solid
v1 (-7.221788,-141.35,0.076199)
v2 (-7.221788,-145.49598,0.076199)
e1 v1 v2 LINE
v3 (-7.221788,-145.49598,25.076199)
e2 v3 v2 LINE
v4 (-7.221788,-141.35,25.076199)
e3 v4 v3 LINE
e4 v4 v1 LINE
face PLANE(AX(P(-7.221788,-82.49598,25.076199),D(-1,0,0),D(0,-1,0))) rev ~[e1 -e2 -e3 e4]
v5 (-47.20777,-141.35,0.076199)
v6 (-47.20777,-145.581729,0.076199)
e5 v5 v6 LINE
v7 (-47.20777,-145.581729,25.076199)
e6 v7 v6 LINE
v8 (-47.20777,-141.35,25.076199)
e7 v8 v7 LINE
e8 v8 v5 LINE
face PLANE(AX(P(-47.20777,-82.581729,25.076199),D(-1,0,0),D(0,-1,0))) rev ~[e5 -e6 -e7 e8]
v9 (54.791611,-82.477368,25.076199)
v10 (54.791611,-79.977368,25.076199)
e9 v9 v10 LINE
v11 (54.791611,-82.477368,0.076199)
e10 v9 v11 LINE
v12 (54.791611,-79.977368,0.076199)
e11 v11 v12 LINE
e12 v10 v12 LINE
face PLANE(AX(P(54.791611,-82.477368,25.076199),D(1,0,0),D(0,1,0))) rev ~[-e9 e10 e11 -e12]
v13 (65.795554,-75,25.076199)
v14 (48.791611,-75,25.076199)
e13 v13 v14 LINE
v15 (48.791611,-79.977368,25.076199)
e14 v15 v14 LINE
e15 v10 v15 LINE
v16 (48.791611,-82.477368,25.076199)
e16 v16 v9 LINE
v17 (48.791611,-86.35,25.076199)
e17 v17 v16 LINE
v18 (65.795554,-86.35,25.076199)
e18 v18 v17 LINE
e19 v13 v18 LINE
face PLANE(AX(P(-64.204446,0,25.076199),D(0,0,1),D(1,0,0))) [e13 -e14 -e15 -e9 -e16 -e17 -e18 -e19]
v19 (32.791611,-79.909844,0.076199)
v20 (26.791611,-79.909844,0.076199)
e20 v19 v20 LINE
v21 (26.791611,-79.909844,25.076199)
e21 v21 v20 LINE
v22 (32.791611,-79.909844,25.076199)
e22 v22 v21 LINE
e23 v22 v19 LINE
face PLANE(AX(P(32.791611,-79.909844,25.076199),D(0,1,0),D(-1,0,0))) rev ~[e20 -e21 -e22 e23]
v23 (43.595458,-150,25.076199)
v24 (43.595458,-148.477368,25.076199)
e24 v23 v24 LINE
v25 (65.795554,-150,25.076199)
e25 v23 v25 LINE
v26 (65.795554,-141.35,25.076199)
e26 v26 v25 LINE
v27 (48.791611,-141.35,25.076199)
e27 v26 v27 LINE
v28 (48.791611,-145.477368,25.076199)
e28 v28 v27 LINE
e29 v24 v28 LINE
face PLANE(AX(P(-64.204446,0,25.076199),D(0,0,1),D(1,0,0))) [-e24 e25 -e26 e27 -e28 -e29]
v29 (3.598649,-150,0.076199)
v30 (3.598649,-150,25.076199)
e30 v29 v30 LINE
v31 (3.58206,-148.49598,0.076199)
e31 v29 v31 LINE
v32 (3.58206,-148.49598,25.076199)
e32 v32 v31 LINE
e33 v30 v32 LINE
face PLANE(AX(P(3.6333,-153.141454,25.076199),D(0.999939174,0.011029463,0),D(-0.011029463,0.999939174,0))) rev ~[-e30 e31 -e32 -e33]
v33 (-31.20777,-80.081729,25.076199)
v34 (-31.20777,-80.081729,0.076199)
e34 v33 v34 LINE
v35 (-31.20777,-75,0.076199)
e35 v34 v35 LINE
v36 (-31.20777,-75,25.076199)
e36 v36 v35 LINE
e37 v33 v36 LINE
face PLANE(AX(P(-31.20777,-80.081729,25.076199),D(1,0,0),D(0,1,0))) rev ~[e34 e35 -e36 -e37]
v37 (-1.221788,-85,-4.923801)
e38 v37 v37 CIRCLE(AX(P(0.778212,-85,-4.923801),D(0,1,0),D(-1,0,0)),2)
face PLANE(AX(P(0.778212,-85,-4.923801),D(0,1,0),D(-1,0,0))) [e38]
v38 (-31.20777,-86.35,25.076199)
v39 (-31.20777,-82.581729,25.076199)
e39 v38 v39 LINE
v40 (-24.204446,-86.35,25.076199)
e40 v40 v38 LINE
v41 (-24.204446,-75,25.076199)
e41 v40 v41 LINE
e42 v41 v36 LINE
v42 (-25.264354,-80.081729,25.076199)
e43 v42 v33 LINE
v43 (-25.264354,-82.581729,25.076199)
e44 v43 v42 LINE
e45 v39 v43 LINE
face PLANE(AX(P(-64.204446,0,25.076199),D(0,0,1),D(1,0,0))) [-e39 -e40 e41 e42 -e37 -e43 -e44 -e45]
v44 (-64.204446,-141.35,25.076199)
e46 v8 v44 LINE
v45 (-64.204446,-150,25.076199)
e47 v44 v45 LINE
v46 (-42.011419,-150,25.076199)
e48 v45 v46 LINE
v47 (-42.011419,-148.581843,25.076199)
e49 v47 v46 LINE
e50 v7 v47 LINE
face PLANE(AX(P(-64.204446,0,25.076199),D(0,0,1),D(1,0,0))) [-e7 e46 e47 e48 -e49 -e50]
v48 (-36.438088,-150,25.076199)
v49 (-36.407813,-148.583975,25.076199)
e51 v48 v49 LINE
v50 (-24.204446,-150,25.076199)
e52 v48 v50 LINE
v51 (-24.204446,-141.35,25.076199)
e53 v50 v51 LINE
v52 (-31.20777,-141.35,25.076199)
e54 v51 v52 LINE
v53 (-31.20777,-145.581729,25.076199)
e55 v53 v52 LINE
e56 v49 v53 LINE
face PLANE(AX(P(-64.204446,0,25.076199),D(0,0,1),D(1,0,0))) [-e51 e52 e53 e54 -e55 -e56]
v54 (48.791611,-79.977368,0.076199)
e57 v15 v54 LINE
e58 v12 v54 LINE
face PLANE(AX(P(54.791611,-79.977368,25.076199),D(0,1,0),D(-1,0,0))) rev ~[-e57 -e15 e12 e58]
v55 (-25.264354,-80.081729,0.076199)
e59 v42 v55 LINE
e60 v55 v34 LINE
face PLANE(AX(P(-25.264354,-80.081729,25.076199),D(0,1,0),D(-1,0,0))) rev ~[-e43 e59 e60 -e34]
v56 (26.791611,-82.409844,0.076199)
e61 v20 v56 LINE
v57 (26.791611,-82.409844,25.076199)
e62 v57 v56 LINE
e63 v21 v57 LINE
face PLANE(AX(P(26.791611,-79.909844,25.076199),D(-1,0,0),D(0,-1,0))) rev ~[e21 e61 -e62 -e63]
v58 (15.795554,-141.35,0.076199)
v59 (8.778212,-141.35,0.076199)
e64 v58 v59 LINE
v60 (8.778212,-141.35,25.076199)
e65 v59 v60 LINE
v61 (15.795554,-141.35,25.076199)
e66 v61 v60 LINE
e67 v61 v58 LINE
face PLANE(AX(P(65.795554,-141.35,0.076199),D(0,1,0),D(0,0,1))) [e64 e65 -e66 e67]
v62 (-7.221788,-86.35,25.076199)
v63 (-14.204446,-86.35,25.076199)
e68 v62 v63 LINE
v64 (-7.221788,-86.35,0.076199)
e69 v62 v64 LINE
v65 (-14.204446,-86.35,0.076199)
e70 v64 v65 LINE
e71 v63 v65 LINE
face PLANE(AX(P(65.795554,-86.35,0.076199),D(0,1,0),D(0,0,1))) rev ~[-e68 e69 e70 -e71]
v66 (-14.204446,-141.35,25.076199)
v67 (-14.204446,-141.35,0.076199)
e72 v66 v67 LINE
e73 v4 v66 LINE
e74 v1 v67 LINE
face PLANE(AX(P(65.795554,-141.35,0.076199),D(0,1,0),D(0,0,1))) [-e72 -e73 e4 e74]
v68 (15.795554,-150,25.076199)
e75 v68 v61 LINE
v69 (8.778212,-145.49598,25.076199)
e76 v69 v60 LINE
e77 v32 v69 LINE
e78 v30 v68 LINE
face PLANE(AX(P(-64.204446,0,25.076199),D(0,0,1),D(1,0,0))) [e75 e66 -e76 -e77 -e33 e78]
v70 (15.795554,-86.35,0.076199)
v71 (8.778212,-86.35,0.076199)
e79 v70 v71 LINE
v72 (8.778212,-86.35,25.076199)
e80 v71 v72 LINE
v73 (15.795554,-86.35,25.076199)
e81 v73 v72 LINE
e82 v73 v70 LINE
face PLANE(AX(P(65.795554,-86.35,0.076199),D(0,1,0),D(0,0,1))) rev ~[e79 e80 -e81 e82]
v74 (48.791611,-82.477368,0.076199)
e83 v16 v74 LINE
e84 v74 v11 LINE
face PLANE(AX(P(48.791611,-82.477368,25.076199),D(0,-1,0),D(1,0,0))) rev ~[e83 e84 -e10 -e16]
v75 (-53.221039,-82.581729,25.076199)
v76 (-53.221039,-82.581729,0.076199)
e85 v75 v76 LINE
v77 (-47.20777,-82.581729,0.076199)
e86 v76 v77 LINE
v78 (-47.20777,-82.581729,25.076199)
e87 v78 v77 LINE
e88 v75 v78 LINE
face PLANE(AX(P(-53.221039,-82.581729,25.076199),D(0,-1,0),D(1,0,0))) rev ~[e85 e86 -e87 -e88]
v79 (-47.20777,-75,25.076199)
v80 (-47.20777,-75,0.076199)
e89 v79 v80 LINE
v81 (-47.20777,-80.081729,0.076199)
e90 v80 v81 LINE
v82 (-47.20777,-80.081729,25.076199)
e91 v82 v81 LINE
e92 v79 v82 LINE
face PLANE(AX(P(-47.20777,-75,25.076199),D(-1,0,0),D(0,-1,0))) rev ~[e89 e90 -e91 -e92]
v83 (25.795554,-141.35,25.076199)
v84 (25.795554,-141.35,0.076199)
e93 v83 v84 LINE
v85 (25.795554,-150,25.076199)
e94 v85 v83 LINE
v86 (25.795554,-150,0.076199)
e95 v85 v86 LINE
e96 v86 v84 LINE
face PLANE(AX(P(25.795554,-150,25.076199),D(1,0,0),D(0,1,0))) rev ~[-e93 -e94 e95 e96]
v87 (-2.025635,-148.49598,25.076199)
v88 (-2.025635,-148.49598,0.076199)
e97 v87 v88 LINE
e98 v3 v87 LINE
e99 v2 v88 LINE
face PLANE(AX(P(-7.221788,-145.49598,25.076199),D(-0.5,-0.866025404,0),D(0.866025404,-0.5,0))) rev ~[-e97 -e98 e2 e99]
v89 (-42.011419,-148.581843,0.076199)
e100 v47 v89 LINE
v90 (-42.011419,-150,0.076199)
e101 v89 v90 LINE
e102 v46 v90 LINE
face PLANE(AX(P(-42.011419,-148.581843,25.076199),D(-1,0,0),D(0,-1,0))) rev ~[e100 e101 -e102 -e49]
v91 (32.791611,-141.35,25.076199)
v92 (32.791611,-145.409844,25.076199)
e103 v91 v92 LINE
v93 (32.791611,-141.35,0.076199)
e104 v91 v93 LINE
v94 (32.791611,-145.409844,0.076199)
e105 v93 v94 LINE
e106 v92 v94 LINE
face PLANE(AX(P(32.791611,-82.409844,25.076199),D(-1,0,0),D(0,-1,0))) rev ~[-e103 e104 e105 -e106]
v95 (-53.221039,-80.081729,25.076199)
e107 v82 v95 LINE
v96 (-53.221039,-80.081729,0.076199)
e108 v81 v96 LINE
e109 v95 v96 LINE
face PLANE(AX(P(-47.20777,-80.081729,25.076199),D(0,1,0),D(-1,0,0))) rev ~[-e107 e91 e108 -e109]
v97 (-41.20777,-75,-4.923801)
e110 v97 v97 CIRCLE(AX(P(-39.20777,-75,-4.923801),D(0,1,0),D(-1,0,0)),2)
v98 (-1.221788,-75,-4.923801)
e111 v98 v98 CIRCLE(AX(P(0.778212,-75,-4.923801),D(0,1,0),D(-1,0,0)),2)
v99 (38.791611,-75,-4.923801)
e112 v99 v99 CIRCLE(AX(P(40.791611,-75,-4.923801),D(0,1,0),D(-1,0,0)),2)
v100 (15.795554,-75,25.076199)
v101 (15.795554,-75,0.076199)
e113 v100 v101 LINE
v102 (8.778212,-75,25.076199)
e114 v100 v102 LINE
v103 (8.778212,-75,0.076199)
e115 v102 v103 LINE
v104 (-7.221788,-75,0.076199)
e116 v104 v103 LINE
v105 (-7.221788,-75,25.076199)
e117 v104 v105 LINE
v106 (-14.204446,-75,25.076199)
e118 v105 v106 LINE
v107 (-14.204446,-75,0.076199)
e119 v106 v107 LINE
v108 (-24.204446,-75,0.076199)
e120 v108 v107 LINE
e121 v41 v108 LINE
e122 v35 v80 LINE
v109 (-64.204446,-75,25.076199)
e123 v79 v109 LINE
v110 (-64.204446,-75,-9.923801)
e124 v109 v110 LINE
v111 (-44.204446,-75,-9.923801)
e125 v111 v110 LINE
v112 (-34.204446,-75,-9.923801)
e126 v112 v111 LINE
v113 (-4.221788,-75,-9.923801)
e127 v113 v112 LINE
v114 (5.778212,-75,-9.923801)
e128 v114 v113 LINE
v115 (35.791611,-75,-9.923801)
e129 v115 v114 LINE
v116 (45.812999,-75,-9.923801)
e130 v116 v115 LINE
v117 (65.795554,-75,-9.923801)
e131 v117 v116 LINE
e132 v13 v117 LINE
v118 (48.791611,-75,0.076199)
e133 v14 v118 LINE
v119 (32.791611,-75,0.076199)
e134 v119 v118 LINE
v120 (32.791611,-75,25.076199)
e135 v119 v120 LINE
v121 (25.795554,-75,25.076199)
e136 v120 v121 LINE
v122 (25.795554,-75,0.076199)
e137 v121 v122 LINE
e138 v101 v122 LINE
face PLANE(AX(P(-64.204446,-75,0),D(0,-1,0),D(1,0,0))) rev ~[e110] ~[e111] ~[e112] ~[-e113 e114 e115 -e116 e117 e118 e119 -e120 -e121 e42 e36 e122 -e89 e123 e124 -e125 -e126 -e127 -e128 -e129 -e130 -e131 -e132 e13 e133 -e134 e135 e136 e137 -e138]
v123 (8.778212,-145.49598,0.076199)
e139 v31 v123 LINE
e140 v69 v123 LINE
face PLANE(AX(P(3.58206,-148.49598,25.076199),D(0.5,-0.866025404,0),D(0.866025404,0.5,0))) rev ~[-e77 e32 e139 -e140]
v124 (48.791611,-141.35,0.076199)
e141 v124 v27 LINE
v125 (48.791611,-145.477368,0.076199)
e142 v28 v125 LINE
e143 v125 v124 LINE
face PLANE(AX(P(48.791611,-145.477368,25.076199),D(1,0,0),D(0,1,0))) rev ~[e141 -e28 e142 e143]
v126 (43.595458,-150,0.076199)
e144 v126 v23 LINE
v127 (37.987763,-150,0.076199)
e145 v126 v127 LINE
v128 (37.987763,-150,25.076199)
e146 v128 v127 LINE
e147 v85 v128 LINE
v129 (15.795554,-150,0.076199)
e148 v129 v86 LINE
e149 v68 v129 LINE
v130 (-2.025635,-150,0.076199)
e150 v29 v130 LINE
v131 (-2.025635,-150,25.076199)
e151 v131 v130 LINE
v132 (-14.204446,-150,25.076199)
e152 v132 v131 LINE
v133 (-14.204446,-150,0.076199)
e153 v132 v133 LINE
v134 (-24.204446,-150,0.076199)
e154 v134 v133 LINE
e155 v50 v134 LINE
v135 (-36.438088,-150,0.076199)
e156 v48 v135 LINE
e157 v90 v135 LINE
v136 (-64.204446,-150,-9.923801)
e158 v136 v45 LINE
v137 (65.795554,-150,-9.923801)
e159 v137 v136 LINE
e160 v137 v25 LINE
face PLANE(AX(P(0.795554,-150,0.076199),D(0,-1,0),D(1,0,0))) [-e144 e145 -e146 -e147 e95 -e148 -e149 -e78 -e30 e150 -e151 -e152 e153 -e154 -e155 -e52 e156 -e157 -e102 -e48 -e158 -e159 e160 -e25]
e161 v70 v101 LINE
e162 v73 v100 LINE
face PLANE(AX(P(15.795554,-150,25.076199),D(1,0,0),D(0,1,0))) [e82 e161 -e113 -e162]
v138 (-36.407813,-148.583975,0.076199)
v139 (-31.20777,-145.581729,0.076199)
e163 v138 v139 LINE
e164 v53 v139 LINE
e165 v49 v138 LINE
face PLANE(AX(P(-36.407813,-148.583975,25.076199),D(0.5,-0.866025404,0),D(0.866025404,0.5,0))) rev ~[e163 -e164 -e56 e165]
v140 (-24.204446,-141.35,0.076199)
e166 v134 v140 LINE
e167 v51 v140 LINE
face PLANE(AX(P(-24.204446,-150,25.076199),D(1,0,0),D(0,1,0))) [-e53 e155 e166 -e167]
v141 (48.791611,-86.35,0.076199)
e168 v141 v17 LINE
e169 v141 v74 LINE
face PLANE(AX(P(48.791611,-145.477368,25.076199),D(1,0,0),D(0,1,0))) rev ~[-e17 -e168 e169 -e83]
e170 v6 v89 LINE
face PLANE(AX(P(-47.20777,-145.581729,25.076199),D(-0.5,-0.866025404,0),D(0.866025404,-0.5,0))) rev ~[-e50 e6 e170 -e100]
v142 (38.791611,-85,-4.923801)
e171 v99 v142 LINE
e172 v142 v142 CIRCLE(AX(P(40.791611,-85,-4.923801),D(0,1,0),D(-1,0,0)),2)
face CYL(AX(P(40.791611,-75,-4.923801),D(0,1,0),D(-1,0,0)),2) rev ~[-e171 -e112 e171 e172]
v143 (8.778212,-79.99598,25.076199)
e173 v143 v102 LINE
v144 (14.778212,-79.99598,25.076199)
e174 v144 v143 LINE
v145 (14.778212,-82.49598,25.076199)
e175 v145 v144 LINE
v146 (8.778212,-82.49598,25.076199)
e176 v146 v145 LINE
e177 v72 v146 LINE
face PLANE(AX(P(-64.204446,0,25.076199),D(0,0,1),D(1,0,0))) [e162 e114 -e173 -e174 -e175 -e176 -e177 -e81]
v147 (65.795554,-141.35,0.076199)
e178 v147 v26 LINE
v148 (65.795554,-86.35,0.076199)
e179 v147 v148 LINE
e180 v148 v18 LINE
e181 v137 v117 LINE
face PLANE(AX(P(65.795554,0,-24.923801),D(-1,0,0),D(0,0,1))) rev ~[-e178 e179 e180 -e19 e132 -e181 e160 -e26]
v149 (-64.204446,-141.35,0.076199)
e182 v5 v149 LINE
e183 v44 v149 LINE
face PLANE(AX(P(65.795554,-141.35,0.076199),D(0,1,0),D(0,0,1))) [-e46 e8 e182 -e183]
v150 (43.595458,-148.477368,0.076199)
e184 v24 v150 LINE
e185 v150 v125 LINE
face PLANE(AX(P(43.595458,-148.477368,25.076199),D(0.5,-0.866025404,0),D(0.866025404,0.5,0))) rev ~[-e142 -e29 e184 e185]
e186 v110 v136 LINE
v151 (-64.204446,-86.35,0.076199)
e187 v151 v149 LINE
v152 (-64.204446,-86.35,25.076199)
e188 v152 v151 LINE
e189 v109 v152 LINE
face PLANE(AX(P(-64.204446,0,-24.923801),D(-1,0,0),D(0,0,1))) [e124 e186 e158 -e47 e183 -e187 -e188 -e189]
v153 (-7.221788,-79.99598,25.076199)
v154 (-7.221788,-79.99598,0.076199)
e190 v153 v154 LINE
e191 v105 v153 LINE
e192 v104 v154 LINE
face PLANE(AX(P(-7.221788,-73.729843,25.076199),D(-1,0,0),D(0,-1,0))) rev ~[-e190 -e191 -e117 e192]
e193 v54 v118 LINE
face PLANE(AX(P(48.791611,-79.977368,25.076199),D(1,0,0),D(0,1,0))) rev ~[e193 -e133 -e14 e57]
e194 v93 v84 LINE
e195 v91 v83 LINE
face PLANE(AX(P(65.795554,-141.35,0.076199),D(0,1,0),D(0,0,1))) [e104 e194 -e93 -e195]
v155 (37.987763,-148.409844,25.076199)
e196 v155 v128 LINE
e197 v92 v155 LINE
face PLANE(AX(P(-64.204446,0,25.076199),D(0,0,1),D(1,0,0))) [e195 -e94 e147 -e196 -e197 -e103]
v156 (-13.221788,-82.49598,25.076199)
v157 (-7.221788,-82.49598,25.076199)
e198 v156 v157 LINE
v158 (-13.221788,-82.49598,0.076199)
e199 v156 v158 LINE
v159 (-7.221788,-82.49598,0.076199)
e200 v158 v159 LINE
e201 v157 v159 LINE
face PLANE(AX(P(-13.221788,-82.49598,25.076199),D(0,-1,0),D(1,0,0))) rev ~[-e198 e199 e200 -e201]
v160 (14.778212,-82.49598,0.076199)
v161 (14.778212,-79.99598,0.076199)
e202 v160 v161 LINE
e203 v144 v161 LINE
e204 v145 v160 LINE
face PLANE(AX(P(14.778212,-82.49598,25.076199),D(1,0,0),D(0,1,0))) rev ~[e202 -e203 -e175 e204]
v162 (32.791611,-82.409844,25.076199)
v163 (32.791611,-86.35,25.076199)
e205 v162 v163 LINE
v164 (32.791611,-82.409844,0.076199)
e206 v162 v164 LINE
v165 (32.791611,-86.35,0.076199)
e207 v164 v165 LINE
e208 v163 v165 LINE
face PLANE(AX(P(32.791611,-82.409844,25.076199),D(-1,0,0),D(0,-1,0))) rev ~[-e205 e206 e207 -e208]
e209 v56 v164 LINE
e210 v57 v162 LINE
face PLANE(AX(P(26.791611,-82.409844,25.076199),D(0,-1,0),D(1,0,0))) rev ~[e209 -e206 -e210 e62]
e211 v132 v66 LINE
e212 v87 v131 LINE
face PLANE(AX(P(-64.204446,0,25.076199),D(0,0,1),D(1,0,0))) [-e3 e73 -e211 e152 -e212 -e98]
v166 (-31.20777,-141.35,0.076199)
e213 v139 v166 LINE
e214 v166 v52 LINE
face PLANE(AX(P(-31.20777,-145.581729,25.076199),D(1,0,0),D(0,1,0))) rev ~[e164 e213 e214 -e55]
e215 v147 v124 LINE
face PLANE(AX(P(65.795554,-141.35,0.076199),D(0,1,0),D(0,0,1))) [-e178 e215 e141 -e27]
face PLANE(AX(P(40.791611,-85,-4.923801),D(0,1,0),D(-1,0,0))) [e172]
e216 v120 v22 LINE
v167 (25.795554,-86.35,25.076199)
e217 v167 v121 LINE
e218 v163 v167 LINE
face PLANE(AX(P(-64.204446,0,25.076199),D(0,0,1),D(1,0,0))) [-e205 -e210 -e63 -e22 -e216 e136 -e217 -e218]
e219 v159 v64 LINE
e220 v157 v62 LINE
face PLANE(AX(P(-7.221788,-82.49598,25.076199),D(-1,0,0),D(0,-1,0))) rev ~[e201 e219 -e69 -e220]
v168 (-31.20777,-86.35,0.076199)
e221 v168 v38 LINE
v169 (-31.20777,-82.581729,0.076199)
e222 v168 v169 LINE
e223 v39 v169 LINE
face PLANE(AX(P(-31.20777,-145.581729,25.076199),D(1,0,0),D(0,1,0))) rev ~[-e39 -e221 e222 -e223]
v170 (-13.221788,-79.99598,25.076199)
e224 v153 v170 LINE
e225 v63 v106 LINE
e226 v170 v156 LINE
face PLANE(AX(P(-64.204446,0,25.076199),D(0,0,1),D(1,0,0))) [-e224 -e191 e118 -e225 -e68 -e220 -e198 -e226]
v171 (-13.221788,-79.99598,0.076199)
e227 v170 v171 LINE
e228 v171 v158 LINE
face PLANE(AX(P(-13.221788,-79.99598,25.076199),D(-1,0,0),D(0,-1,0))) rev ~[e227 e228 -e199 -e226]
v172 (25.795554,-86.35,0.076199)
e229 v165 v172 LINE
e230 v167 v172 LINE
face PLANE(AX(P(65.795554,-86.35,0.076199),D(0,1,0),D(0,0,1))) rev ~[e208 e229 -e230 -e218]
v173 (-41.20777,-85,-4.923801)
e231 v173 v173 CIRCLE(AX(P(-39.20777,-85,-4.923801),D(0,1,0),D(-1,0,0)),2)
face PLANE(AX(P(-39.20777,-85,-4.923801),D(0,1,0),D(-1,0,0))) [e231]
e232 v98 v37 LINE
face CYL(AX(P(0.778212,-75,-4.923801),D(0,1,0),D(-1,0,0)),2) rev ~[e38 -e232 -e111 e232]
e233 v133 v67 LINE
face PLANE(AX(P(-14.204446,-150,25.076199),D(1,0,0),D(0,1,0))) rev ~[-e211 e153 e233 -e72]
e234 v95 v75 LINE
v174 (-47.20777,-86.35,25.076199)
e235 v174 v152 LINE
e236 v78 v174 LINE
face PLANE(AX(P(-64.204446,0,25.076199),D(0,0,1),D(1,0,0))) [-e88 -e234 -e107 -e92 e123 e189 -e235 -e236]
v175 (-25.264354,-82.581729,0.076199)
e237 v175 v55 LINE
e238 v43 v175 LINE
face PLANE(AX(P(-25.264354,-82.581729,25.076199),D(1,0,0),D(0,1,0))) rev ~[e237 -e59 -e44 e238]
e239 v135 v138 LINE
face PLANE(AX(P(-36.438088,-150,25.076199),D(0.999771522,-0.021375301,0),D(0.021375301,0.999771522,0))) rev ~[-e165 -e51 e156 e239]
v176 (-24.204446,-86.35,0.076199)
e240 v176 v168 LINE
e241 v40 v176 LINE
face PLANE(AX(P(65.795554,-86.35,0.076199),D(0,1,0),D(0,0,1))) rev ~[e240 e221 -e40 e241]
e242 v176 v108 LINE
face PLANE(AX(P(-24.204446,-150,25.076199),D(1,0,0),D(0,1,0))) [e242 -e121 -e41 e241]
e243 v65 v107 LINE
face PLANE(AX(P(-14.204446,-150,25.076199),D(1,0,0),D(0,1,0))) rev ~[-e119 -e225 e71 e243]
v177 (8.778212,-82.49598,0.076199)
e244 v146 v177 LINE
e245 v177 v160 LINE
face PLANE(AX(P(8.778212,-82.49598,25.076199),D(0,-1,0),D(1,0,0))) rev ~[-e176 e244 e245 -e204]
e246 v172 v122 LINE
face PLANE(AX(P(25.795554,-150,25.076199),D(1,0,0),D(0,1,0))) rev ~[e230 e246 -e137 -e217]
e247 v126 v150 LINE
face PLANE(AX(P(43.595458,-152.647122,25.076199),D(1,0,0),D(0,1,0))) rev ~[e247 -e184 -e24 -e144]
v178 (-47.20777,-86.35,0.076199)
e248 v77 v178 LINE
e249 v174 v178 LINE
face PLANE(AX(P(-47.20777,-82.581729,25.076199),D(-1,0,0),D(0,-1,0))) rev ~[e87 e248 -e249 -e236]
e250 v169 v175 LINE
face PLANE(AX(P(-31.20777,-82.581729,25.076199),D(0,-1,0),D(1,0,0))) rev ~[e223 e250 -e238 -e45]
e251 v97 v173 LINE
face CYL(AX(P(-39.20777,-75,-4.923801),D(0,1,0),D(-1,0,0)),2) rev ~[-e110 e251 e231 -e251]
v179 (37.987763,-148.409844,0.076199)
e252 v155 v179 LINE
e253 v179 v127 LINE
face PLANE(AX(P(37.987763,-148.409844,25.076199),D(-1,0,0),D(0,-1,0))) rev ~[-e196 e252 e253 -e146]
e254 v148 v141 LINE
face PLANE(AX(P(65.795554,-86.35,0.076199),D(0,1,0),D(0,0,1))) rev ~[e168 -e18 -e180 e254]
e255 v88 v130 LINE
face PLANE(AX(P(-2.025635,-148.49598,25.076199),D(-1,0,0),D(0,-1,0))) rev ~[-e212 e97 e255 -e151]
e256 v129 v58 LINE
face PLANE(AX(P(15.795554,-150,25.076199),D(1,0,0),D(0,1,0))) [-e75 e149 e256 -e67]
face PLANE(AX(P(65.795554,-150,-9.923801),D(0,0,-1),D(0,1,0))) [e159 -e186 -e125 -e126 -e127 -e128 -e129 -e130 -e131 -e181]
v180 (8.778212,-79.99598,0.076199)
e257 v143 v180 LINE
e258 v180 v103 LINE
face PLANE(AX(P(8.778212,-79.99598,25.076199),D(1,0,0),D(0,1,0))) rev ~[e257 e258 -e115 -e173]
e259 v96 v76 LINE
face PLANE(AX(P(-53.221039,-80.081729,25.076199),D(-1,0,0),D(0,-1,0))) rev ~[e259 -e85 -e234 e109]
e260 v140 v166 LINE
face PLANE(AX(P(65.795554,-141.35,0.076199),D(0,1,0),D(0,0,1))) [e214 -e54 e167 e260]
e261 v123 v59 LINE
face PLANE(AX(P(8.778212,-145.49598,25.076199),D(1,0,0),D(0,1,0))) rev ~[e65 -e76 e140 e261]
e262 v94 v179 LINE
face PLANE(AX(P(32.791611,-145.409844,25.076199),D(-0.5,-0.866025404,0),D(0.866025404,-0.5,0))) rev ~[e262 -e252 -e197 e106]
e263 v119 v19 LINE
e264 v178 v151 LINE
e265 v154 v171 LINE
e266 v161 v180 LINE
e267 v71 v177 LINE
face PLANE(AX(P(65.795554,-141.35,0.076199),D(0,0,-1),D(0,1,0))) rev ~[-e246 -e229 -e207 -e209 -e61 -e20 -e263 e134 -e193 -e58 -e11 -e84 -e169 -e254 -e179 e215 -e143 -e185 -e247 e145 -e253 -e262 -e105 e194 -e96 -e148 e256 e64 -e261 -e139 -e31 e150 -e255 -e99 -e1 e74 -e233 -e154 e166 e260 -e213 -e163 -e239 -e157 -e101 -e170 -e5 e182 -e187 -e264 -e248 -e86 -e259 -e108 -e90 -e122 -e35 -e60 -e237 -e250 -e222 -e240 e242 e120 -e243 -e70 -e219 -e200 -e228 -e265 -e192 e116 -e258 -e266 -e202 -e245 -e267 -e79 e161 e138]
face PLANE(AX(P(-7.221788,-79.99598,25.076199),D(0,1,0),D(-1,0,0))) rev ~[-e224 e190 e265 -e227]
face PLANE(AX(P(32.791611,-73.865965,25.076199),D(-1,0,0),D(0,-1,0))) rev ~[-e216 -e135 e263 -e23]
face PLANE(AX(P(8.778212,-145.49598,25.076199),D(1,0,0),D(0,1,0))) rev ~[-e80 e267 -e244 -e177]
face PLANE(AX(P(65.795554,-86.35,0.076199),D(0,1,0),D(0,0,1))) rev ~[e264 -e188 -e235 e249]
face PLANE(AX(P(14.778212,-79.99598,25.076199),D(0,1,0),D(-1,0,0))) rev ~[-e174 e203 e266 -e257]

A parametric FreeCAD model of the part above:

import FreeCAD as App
import Part
import Sketcher
Q = App.Units.Quantity

doc = App.newDocument("Part")
body = doc.addObject("PartDesign::Body", "Body")

# Sketch on XZ plane
sketch1 = body.newObject("Sketcher::SketchObject", "Sketch")
sketch1.AttachmentSupport = (doc.getObject("XZ_Plane"), [""])
sketch1.MapMode = "FlatFace"
sketch1.addGeometry([
    Part.LineSegment(App.Vector(-64, 25, 0), App.Vector(-64, -25, 0)),
    Part.LineSegment(App.Vector(-64, -25, 0), App.Vector(66, -25, 0)),
    Part.LineSegment(App.Vector(66, -25, 0), App.Vector(66, 25, 0)),
    Part.LineSegment(App.Vector(66, 25, 0), App.Vector(-64, 25, 0)),
], False)
sketch1.addConstraint([
    Sketcher.Constraint("Coincident", 0, 2, 1, 1),
    Sketcher.Constraint("Coincident", 1, 2, 2, 1),
    Sketcher.Constraint("Coincident", 2, 2, 3, 1),
    Sketcher.Constraint("Coincident", 3, 2, 0, 1),
    Sketcher.Constraint("Vertical", 0),
    Sketcher.Constraint("Horizontal", 1),
    Sketcher.Constraint("Vertical", 2),
    Sketcher.Constraint("Horizontal", 3),
    Sketcher.Constraint("DistanceX", 1, 1, 1, 2, Q("130 mm")),
    Sketcher.Constraint("DistanceY", 0, 2, 0, 1, Q("50 mm")),
    Sketcher.Constraint("DistanceY", 0, 2, -1, 1, Q("24.923801 mm")),
    Sketcher.Constraint("DistanceX", 0, 2, -1, 1, Q("64.204446 mm")),
])
pad1 = body.newObject("PartDesign::Pad", "Pad")
pad1.Profile = sketch1
pad1.Length = 150

# Sketch on YZ plane
sketch2 = body.newObject("Sketcher::SketchObject", "Sketch001")
sketch2.AttachmentSupport = (doc.getObject("YZ_Plane"), [""])
sketch2.MapMode = "FlatFace"
sketch2.AttachmentOffset = App.Placement(App.Vector(0, 0, 65.795554), App.Rotation())
sketch2.addGeometry([
    Part.LineSegment(App.Vector(-75, 25, 0), App.Vector(-75, 0, 0)),
    Part.LineSegment(App.Vector(-75, 0, 0), App.Vector(0, 0, 0)),
    Part.LineSegment(App.Vector(0, 0, 0), App.Vector(0, 25, 0)),
    Part.LineSegment(App.Vector(0, 25, 0), App.Vector(-75, 25, 0)),
], False)
sketch2.addConstraint([
    Sketcher.Constraint("Coincident", 0, 2, 1, 1),
    Sketcher.Constraint("Coincident", 1, 2, 2, 1),
    Sketcher.Constraint("Coincident", 2, 2, 3, 1),
    Sketcher.Constraint("Coincident", 3, 2, 0, 1),
    Sketcher.Constraint("Vertical", 0),
    Sketcher.Constraint("Horizontal", 1),
    Sketcher.Constraint("Vertical", 2),
    Sketcher.Constraint("Horizontal", 3),
    Sketcher.Constraint("Coincident", 1, 2, -1, 1),
    Sketcher.Constraint("DistanceX", 1, 1, 1, 2, Q("75 mm")),
    Sketcher.Constraint("DistanceY", 0, 2, 0, 1, Q("25.076199 mm")),
])
pocket1 = body.newObject("PartDesign::Pocket", "Pocket")
pocket1.Profile = sketch2
pocket1.Type = "ThroughAll"

# Sketch on XY plane
sketch3 = body.newObject("Sketcher::SketchObject", "Sketch002")
sketch3.AttachmentSupport = (doc.getObject("XY_Plane"), [""])
sketch3.MapMode = "FlatFace"
sketch3.AttachmentOffset = App.Placement(App.Vector(0, 0, 25.076199), App.Rotation())
sketch3.addGeometry([
    Part.LineSegment(App.Vector(-31.2, -75, 0), App.Vector(-47.2, -75, 0)),  # 0
    Part.LineSegment(App.Vector(-47.2, -75, 0), App.Vector(-47.2, -80.1, 0)),  # 1
    Part.LineSegment(App.Vector(-47.2, -80.1, 0), App.Vector(-53.2, -80.1, 0)),  # 2
    Part.LineSegment(App.Vector(-53.2, -80.1, 0), App.Vector(-53.2, -82.6, 0)),  # 3
    Part.LineSegment(App.Vector(-53.2, -82.6, 0), App.Vector(-47.2, -82.6, 0)),  # 4
    Part.LineSegment(App.Vector(-47.2, -82.6, 0), App.Vector(-47.2, -145.6, 0)),  # 5
    Part.LineSegment(App.Vector(-47.2, -145.6, 0), App.Vector(-42, -148.6, 0)),  # 6
    Part.LineSegment(App.Vector(-42, -148.6, 0), App.Vector(-42, -150, 0)),  # 7
    Part.LineSegment(App.Vector(-42, -150, 0), App.Vector(-36.4, -150, 0)),  # 8
    Part.LineSegment(App.Vector(-36.4, -150, 0), App.Vector(-36.4, -148.6, 0)),  # 9
    Part.LineSegment(App.Vector(-36.4, -148.6, 0), App.Vector(-31.2, -145.6, 0)),  # 10
    Part.LineSegment(App.Vector(-31.2, -145.6, 0), App.Vector(-31.2, -82.6, 0)),  # 11
    Part.LineSegment(App.Vector(-31.2, -82.6, 0), App.Vector(-25.3, -82.6, 0)),  # 12
    Part.LineSegment(App.Vector(-25.3, -82.6, 0), App.Vector(-25.3, -80.1, 0)),  # 13
    Part.LineSegment(App.Vector(-25.3, -80.1, 0), App.Vector(-31.2, -80.1, 0)),  # 14
    Part.LineSegment(App.Vector(-31.2, -80.1, 0), App.Vector(-31.2, -75, 0)),  # 15
], False)
sketch3.addConstraint([
    Sketcher.Constraint("Coincident", 0, 2, 1, 1),
    Sketcher.Constraint("Coincident", 1, 2, 2, 1),
    Sketcher.Constraint("Coincident", 2, 2, 3, 1),
    Sketcher.Constraint("Coincident", 3, 2, 4, 1),
    Sketcher.Constraint("Coincident", 4, 2, 5, 1),
    Sketcher.Constraint("Coincident", 5, 2, 6, 1),
    Sketcher.Constraint("Coincident", 6, 2, 7, 1),
    Sketcher.Constraint("Coincident", 7, 2, 8, 1),
    Sketcher.Constraint("Coincident", 8, 2, 9, 1),
    Sketcher.Constraint("Coincident", 9, 2, 10, 1),
    Sketcher.Constraint("Coincident", 10, 2, 11, 1),
    Sketcher.Constraint("Coincident", 11, 2, 12, 1),
    Sketcher.Constraint("Coincident", 12, 2, 13, 1),
    Sketcher.Constraint("Coincident", 13, 2, 14, 1),
    Sketcher.Constraint("Coincident", 14, 2, 15, 1),
    Sketcher.Constraint("Coincident", 15, 2, 0, 1),
    Sketcher.Constraint("Horizontal", 0),
    Sketcher.Constraint("Vertical", 1),
    Sketcher.Constraint("Horizontal", 2),
    Sketcher.Constraint("Vertical", 3),
    Sketcher.Constraint("Horizontal", 4),
    Sketcher.Constraint("Vertical", 5),
    Sketcher.Constraint("Vertical", 7),
    Sketcher.Constraint("Horizontal", 8),
    Sketcher.Constraint("Vertical", 11),
    Sketcher.Constraint("Horizontal", 12),
    Sketcher.Constraint("Vertical", 13),
    Sketcher.Constraint("Horizontal", 14),
    Sketcher.Constraint("Vertical", 15),
    Sketcher.Constraint("Horizontal", 5, 2, 10, 2),
    Sketcher.Constraint("Horizontal", 4, 2, 11, 2),
    Sketcher.Constraint("Horizontal", 2, 2, 13, 2),
    Sketcher.Constraint("Vertical", 1, 2, 4, 2),
    Sketcher.Constraint("Vertical", 11, 2, 14, 2),
    Sketcher.Constraint("DistanceX", 0, 2, 0, 1, Q("16 mm")),
    Sketcher.Constraint("DistanceY", 5, 2, 5, 1, Q("63 mm")),
    Sketcher.Constraint("Angle", 6, Q("-30 deg")),
    Sketcher.Constraint("Angle", 10, Q("30 deg")),
    Sketcher.Constraint("DistanceY", 3, 2, 3, 1, Q("2.5 mm")),
    Sketcher.Constraint("DistanceY", 0, 2, -1, 1, Q("75 mm")),
    Sketcher.Constraint("DistanceY", 7, 2, -1, 1, Q("150 mm")),
    Sketcher.Constraint("DistanceX", 2, 2, 2, 1, Q("6.01327 mm")),
    Sketcher.Constraint("DistanceX", 8, 1, 8, 2, Q("5.573331 mm")),
    Sketcher.Constraint("DistanceY", 1, 2, 1, 1, Q("5.081729 mm")),
    Sketcher.Constraint("Distance", 6, Q("6.00023 mm")),
    Sketcher.Constraint("Distance", 9, Q("1.416349 mm")),
    Sketcher.Constraint("DistanceX", 12, 1, 12, 2, Q("5.943416 mm")),
    Sketcher.Constraint("DistanceX", 0, 2, -1, 1, Q("47.20777 mm")),
])
pocket2 = body.newObject("PartDesign::Pocket", "Pocket001")
pocket2.Profile = sketch3
pocket2.Length = 25

# Sketch on XY plane
sketch4 = body.newObject("Sketcher::SketchObject", "Sketch003")
sketch4.AttachmentSupport = (doc.getObject("XY_Plane"), [""])
sketch4.MapMode = "FlatFace"
sketch4.AttachmentOffset = App.Placement(App.Vector(0, 0, 25.076199), App.Rotation())
sketch4.addGeometry([
    Part.LineSegment(App.Vector(48.8, -73.9, 0), App.Vector(32.8, -73.9, 0)),  # 0
    Part.LineSegment(App.Vector(32.8, -73.9, 0), App.Vector(32.8, -79.9, 0)),  # 1
    Part.LineSegment(App.Vector(32.8, -79.9, 0), App.Vector(26.8, -79.9, 0)),  # 2
    Part.LineSegment(App.Vector(26.8, -79.9, 0), App.Vector(26.8, -82.4, 0)),  # 3
    Part.LineSegment(App.Vector(26.8, -82.4, 0), App.Vector(32.8, -82.4, 0)),  # 4
    Part.LineSegment(App.Vector(32.8, -82.4, 0), App.Vector(32.8, -145.4, 0)),  # 5
    Part.LineSegment(App.Vector(32.8, -145.4, 0), App.Vector(38, -148.4, 0)),  # 6
    Part.LineSegment(App.Vector(38, -148.4, 0), App.Vector(38, -152.6, 0)),  # 7
    Part.LineSegment(App.Vector(38, -152.6, 0), App.Vector(43.6, -152.6, 0)),  # 8
    Part.LineSegment(App.Vector(43.6, -152.6, 0), App.Vector(43.6, -148.5, 0)),  # 9
    Part.LineSegment(App.Vector(43.6, -148.5, 0), App.Vector(48.8, -145.5, 0)),  # 10
    Part.LineSegment(App.Vector(48.8, -145.5, 0), App.Vector(48.8, -82.5, 0)),  # 11
    Part.LineSegment(App.Vector(48.8, -82.5, 0), App.Vector(54.8, -82.5, 0)),  # 12
    Part.LineSegment(App.Vector(54.8, -82.5, 0), App.Vector(54.8, -80, 0)),  # 13
    Part.LineSegment(App.Vector(54.8, -80, 0), App.Vector(48.8, -80, 0)),  # 14
    Part.LineSegment(App.Vector(48.8, -80, 0), App.Vector(48.8, -73.9, 0)),  # 15
], False)
sketch4.addConstraint([
    Sketcher.Constraint("Coincident", 0, 2, 1, 1),
    Sketcher.Constraint("Coincident", 1, 2, 2, 1),
    Sketcher.Constraint("Coincident", 2, 2, 3, 1),
    Sketcher.Constraint("Coincident", 3, 2, 4, 1),
    Sketcher.Constraint("Coincident", 4, 2, 5, 1),
    Sketcher.Constraint("Coincident", 5, 2, 6, 1),
    Sketcher.Constraint("Coincident", 6, 2, 7, 1),
    Sketcher.Constraint("Coincident", 7, 2, 8, 1),
    Sketcher.Constraint("Coincident", 8, 2, 9, 1),
    Sketcher.Constraint("Coincident", 9, 2, 10, 1),
    Sketcher.Constraint("Coincident", 10, 2, 11, 1),
    Sketcher.Constraint("Coincident", 11, 2, 12, 1),
    Sketcher.Constraint("Coincident", 12, 2, 13, 1),
    Sketcher.Constraint("Coincident", 13, 2, 14, 1),
    Sketcher.Constraint("Coincident", 14, 2, 15, 1),
    Sketcher.Constraint("Coincident", 15, 2, 0, 1),
    Sketcher.Constraint("Vertical", 1),
    Sketcher.Constraint("Horizontal", 2),
    Sketcher.Constraint("Vertical", 3),
    Sketcher.Constraint("Horizontal", 4),
    Sketcher.Constraint("Vertical", 5),
    Sketcher.Constraint("Vertical", 7),
    Sketcher.Constraint("Horizontal", 8),
    Sketcher.Constraint("Vertical", 9),
    Sketcher.Constraint("Vertical", 11),
    Sketcher.Constraint("Horizontal", 12),
    Sketcher.Constraint("Vertical", 13),
    Sketcher.Constraint("Horizontal", 14),
    Sketcher.Constraint("Vertical", 15),
    Sketcher.Constraint("Vertical", 1, 2, 4, 2),
    Sketcher.Constraint("Vertical", 11, 2, 14, 2),
    Sketcher.Constraint("Equal", 4, 12),
    Sketcher.Constraint("Equal", 5, 11),
    Sketcher.Constraint("Equal", 3, 13),
    Sketcher.Constraint("Equal", 1, 15),
    Sketcher.Constraint("Equal", 6, 10),
    Sketcher.Constraint("DistanceX", 2, 2, 2, 1, Q("6 mm")),
    Sketcher.Constraint("DistanceY", 5, 2, 5, 1, Q("63 mm")),
    Sketcher.Constraint("Angle", 6, Q("-30 deg")),
    Sketcher.Constraint("Angle", 10, Q("30 deg")),
    Sketcher.Constraint("Distance", 6, Q("6 mm")),
    Sketcher.Constraint("DistanceY", 3, 2, 3, 1, Q("2.5 mm")),
    Sketcher.Constraint("DistanceX", 5, 2, 10, 2, Q("16 mm")),
    Sketcher.Constraint("DistanceY", 1, 2, 1, 1, Q("6.043878 mm")),
    Sketcher.Constraint("DistanceY", 7, 2, 7, 1, Q("4.237278 mm")),
    Sketcher.Constraint("DistanceY", 9, 1, 9, 2, Q("4.169754 mm")),
    Sketcher.Constraint("DistanceX", -1, 1, 0, 2, Q("32.791611 mm")),
    Sketcher.Constraint("DistanceY", 7, 2, -1, 1, Q("152.647122 mm")),
])
pocket3 = body.newObject("PartDesign::Pocket", "Pocket002")
pocket3.Profile = sketch4
pocket3.Length = 25

# Sketch on XY plane
sketch5 = body.newObject("Sketcher::SketchObject", "Sketch004")
sketch5.AttachmentSupport = (doc.getObject("XY_Plane"), [""])
sketch5.MapMode = "FlatFace"
sketch5.AttachmentOffset = App.Placement(App.Vector(0, 0, 25.076199), App.Rotation())
sketch5.addGeometry([
    Part.LineSegment(App.Vector(8.8, -73.7, 0), App.Vector(-7.2, -73.7, 0)),  # 0
    Part.LineSegment(App.Vector(-7.2, -73.7, 0), App.Vector(-7.2, -80, 0)),  # 1
    Part.LineSegment(App.Vector(-7.2, -80, 0), App.Vector(-13.2, -80, 0)),  # 2
    Part.LineSegment(App.Vector(-13.2, -80, 0), App.Vector(-13.2, -82.5, 0)),  # 3
    Part.LineSegment(App.Vector(-13.2, -82.5, 0), App.Vector(-7.2, -82.5, 0)),  # 4
    Part.LineSegment(App.Vector(-7.2, -82.5, 0), App.Vector(-7.2, -145.5, 0)),  # 5
    Part.LineSegment(App.Vector(-7.2, -145.5, 0), App.Vector(-2, -148.5, 0)),  # 6
    Part.LineSegment(App.Vector(-2, -148.5, 0), App.Vector(-2, -153.1, 0)),  # 7
    Part.LineSegment(App.Vector(-2, -153.1, 0), App.Vector(3.6, -153.1, 0)),  # 8
    Part.LineSegment(App.Vector(3.6, -153.1, 0), App.Vector(3.6, -148.5, 0)),  # 9
    Part.LineSegment(App.Vector(3.6, -148.5, 0), App.Vector(8.8, -145.5, 0)),  # 10
    Part.LineSegment(App.Vector(8.8, -145.5, 0), App.Vector(8.8, -82.5, 0)),  # 11
    Part.LineSegment(App.Vector(8.8, -82.5, 0), App.Vector(14.8, -82.5, 0)),  # 12
    Part.LineSegment(App.Vector(14.8, -82.5, 0), App.Vector(14.8, -80, 0)),  # 13
    Part.LineSegment(App.Vector(14.8, -80, 0), App.Vector(8.8, -80, 0)),  # 14
    Part.LineSegment(App.Vector(8.8, -80, 0), App.Vector(8.8, -73.7, 0)),  # 15
], False)
sketch5.addConstraint([
    Sketcher.Constraint("Coincident", 0, 2, 1, 1),
    Sketcher.Constraint("Coincident", 1, 2, 2, 1),
    Sketcher.Constraint("Coincident", 2, 2, 3, 1),
    Sketcher.Constraint("Coincident", 3, 2, 4, 1),
    Sketcher.Constraint("Coincident", 4, 2, 5, 1),
    Sketcher.Constraint("Coincident", 5, 2, 6, 1),
    Sketcher.Constraint("Coincident", 6, 2, 7, 1),
    Sketcher.Constraint("Coincident", 7, 2, 8, 1),
    Sketcher.Constraint("Coincident", 8, 2, 9, 1),
    Sketcher.Constraint("Coincident", 9, 2, 10, 1),
    Sketcher.Constraint("Coincident", 10, 2, 11, 1),
    Sketcher.Constraint("Coincident", 11, 2, 12, 1),
    Sketcher.Constraint("Coincident", 12, 2, 13, 1),
    Sketcher.Constraint("Coincident", 13, 2, 14, 1),
    Sketcher.Constraint("Coincident", 14, 2, 15, 1),
    Sketcher.Constraint("Coincident", 15, 2, 0, 1),
    Sketcher.Constraint("Horizontal", 0),
    Sketcher.Constraint("Vertical", 1),
    Sketcher.Constraint("Horizontal", 2),
    Sketcher.Constraint("Vertical", 3),
    Sketcher.Constraint("Horizontal", 4),
    Sketcher.Constraint("Vertical", 5),
    Sketcher.Constraint("Vertical", 7),
    Sketcher.Constraint("Horizontal", 8),
    Sketcher.Constraint("Vertical", 11),
    Sketcher.Constraint("Horizontal", 12),
    Sketcher.Constraint("Vertical", 13),
    Sketcher.Constraint("Horizontal", 14),
    Sketcher.Constraint("Vertical", 15),
    Sketcher.Constraint("Horizontal", 6, 2, 9, 2),
    Sketcher.Constraint("Horizontal", 5, 2, 10, 2),
    Sketcher.Constraint("Horizontal", 4, 2, 11, 2),
    Sketcher.Constraint("Horizontal", 2, 2, 13, 2),
    Sketcher.Constraint("Vertical", 1, 2, 4, 2),
    Sketcher.Constraint("Vertical", 11, 2, 14, 2),
    Sketcher.Constraint("Equal", 4, 12),
    Sketcher.Constraint("Equal", 6, 10),
    Sketcher.Constraint("DistanceX", 0, 2, 0, 1, Q("16 mm")),
    Sketcher.Constraint("DistanceX", 2, 2, 2, 1, Q("6 mm")),
    Sketcher.Constraint("DistanceY", 5, 2, 5, 1, Q("63 mm")),
    Sketcher.Constraint("Angle", 6, Q("-30 deg")),
    Sketcher.Constraint("Distance", 6, Q("6 mm")),
    Sketcher.Constraint("DistanceY", 3, 2, 3, 1, Q("2.5 mm")),
    Sketcher.Constraint("DistanceX", -1, 1, 8, 2, Q("3.6333 mm")),
    Sketcher.Constraint("DistanceX", 8, 1, 8, 2, Q("5.658935 mm")),
    Sketcher.Constraint("DistanceY", 1, 2, 1, 1, Q("6.266137 mm")),
    Sketcher.Constraint("DistanceY", 7, 2, 7, 1, Q("4.645474 mm")),
    Sketcher.Constraint("DistanceY", 1, 2, -1, 1, Q("79.99598 mm")),
])
pocket4 = body.newObject("PartDesign::Pocket", "Pocket003")
pocket4.Profile = sketch5
pocket4.Length = 25

# Sketch on YZ plane
sketch6 = body.newObject("Sketcher::SketchObject", "Sketch005")
sketch6.AttachmentSupport = (doc.getObject("YZ_Plane"), [""])
sketch6.MapMode = "FlatFace"
sketch6.AttachmentOffset = App.Placement(App.Vector(0, 0, 65.795554), App.Rotation())
sketch6.addGeometry([
    Part.LineSegment(App.Vector(-150, -10, 0), App.Vector(-150, -25, 0)),
    Part.LineSegment(App.Vector(-150, -25, 0), App.Vector(0, -25, 0)),
    Part.LineSegment(App.Vector(0, -25, 0), App.Vector(0, -10, 0)),
    Part.LineSegment(App.Vector(0, -10, 0), App.Vector(-150, -10, 0)),
], False)
sketch6.addConstraint([
    Sketcher.Constraint("Coincident", 0, 2, 1, 1),
    Sketcher.Constraint("Coincident", 1, 2, 2, 1),
    Sketcher.Constraint("Coincident", 2, 2, 3, 1),
    Sketcher.Constraint("Coincident", 3, 2, 0, 1),
    Sketcher.Constraint("Vertical", 0),
    Sketcher.Constraint("Horizontal", 1),
    Sketcher.Constraint("Vertical", 2),
    Sketcher.Constraint("Horizontal", 3),
    Sketcher.Constraint("PointOnObject", 1, 2, -2),
    Sketcher.Constraint("DistanceX", 1, 1, 1, 2, Q("150 mm")),
    Sketcher.Constraint("DistanceY", 0, 2, 0, 1, Q("15 mm")),
    Sketcher.Constraint("DistanceY", 0, 2, -1, 1, Q("24.923801 mm")),
])
pocket5 = body.newObject("PartDesign::Pocket", "Pocket004")
pocket5.Profile = sketch6
pocket5.Length = 161

# Sketch on XY plane
sketch7 = body.newObject("Sketcher::SketchObject", "Sketch006")
sketch7.AttachmentSupport = (doc.getObject("XY_Plane"), [""])
sketch7.MapMode = "FlatFace"
sketch7.addGeometry([
    Part.LineSegment(App.Vector(-64, 0, 0), App.Vector(-64, -75, 0)),  # 0
    Part.LineSegment(App.Vector(-64, -75, 0), App.Vector(-44, -75, 0)),  # 1
    Part.LineSegment(App.Vector(-44, -75, 0), App.Vector(-44, 0, 0)),  # 2
    Part.LineSegment(App.Vector(-44, 0, 0), App.Vector(-64, 0, 0)),  # 3
    Part.LineSegment(App.Vector(-34, 0, 0), App.Vector(-34, -75, 0)),  # 4
    Part.LineSegment(App.Vector(-34, -75, 0), App.Vector(-4, -75, 0)),  # 5
    Part.LineSegment(App.Vector(-4, -75, 0), App.Vector(-4, 0, 0)),  # 6
    Part.LineSegment(App.Vector(-4, 0, 0), App.Vector(-34, 0, 0)),  # 7
    Part.LineSegment(App.Vector(6, 0, 0), App.Vector(6, -75, 0)),  # 8
    Part.LineSegment(App.Vector(6, -75, 0), App.Vector(36, -75, 0)),  # 9
    Part.LineSegment(App.Vector(36, -75, 0), App.Vector(36, 0, 0)),  # 10
    Part.LineSegment(App.Vector(36, 0, 0), App.Vector(6, 0, 0)),  # 11
    Part.LineSegment(App.Vector(46, 0, 0), App.Vector(46, -75, 0)),  # 12
    Part.LineSegment(App.Vector(46, -75, 0), App.Vector(66, -75, 0)),  # 13
    Part.LineSegment(App.Vector(66, -75, 0), App.Vector(66, 0, 0)),  # 14
    Part.LineSegment(App.Vector(66, 0, 0), App.Vector(46, 0, 0)),  # 15
], False)
sketch7.addConstraint([
    Sketcher.Constraint("Coincident", 0, 2, 1, 1),
    Sketcher.Constraint("Coincident", 1, 2, 2, 1),
    Sketcher.Constraint("Coincident", 2, 2, 3, 1),
    Sketcher.Constraint("Coincident", 3, 2, 0, 1),
    Sketcher.Constraint("Coincident", 4, 2, 5, 1),
    Sketcher.Constraint("Coincident", 5, 2, 6, 1),
    Sketcher.Constraint("Coincident", 6, 2, 7, 1),
    Sketcher.Constraint("Coincident", 7, 2, 4, 1),
    Sketcher.Constraint("Coincident", 8, 2, 9, 1),
    Sketcher.Constraint("Coincident", 9, 2, 10, 1),
    Sketcher.Constraint("Coincident", 10, 2, 11, 1),
    Sketcher.Constraint("Coincident", 11, 2, 8, 1),
    Sketcher.Constraint("Coincident", 12, 2, 13, 1),
    Sketcher.Constraint("Coincident", 13, 2, 14, 1),
    Sketcher.Constraint("Coincident", 14, 2, 15, 1),
    Sketcher.Constraint("Coincident", 15, 2, 12, 1),
    Sketcher.Constraint("Vertical", 0),
    Sketcher.Constraint("Horizontal", 1),
    Sketcher.Constraint("Vertical", 2),
    Sketcher.Constraint("Horizontal", 3),
    Sketcher.Constraint("Vertical", 4),
    Sketcher.Constraint("Horizontal", 5),
    Sketcher.Constraint("Vertical", 6),
    Sketcher.Constraint("Horizontal", 7),
    Sketcher.Constraint("Vertical", 8),
    Sketcher.Constraint("Horizontal", 9),
    Sketcher.Constraint("Vertical", 10),
    Sketcher.Constraint("Horizontal", 11),
    Sketcher.Constraint("Vertical", 12),
    Sketcher.Constraint("Horizontal", 13),
    Sketcher.Constraint("Vertical", 14),
    Sketcher.Constraint("Horizontal", 15),
    Sketcher.Constraint("PointOnObject", 2, 2, -1),
    Sketcher.Constraint("PointOnObject", 6, 2, -1),
    Sketcher.Constraint("PointOnObject", 10, 2, -1),
    Sketcher.Constraint("PointOnObject", 14, 2, -1),
    Sketcher.Constraint("Horizontal", 1, 2, 4, 2),
    Sketcher.Constraint("Horizontal", 5, 2, 8, 2),
    Sketcher.Constraint("Horizontal", 9, 2, 12, 2),
    Sketcher.Constraint("DistanceX", 1, 1, 1, 2, Q("20 mm")),
    Sketcher.Constraint("DistanceY", 0, 2, 0, 1, Q("75 mm")),
    Sketcher.Constraint("DistanceX", 1, 2, 4, 2, Q("10 mm")),
    Sketcher.Constraint("DistanceX", 5, 2, 8, 2, Q("10 mm")),
    Sketcher.Constraint("DistanceX", 9, 1, 9, 2, Q("30.013399 mm")),
    Sketcher.Constraint("DistanceX", -1, 1, 12, 2, Q("45.812999 mm")),
    Sketcher.Constraint("DistanceX", 5, 1, 5, 2, Q("29.982658 mm")),
    Sketcher.Constraint("DistanceX", 13, 1, 13, 2, Q("19.982555 mm")),
    Sketcher.Constraint("DistanceX", -1, 1, 9, 2, Q("35.791611 mm")),
])
pocket6 = body.newObject("PartDesign::Pocket", "Pocket005")
pocket6.Profile = sketch7
pocket6.Length = 25

# Sketch on YZ plane
sketch8 = body.newObject("Sketcher::SketchObject", "Sketch007")
sketch8.AttachmentSupport = (doc.getObject("YZ_Plane"), [""])
sketch8.MapMode = "FlatFace"
sketch8.AttachmentOffset = App.Placement(App.Vector(0, 0, 45.812999), App.Rotation())
sketch8.addGeometry([
    Part.LineSegment(App.Vector(-75, 0, 0), App.Vector(-75, -10, 0)),
    Part.LineSegment(App.Vector(-75, -10, 0), App.Vector(0, -10, 0)),
    Part.LineSegment(App.Vector(0, -10, 0), App.Vector(0, 0, 0)),
    Part.LineSegment(App.Vector(0, 0, 0), App.Vector(-75, 0, 0)),
], False)
sketch8.addConstraint([
    Sketcher.Constraint("Coincident", 0, 2, 1, 1),
    Sketcher.Constraint("Coincident", 1, 2, 2, 1),
    Sketcher.Constraint("Coincident", 2, 2, 3, 1),
    Sketcher.Constraint("Coincident", 3, 2, 0, 1),
    Sketcher.Constraint("Vertical", 0),
    Sketcher.Constraint("Horizontal", 1),
    Sketcher.Constraint("Vertical", 2),
    Sketcher.Constraint("Horizontal", 3),
    Sketcher.Constraint("Coincident", 2, 2, -1, 1),
    Sketcher.Constraint("DistanceX", 1, 1, 1, 2, Q("75 mm")),
    Sketcher.Constraint("DistanceY", 0, 2, 0, 1, Q("9.923801 mm")),
])
pocket7 = body.newObject("PartDesign::Pocket", "Pocket006")
pocket7.Profile = sketch8
pocket7.Length = 100

# Sketch on XZ plane
sketch9 = body.newObject("Sketcher::SketchObject", "Sketch008")
sketch9.AttachmentSupport = (doc.getObject("XZ_Plane"), [""])
sketch9.MapMode = "FlatFace"
sketch9.AttachmentOffset = App.Placement(App.Vector(0, 0, 75), App.Rotation())
sketch9.addGeometry([
    Part.Circle(App.Vector(40.8, -4.9, 0), App.Vector(0, 0, 1), 2),
    Part.Circle(App.Vector(0.8, -4.9, 0), App.Vector(0, 0, 1), 2),
    Part.Circle(App.Vector(-39.2, -4.9, 0), App.Vector(0, 0, 1), 2),
], False)
sketch9.addConstraint([
    Sketcher.Constraint("Equal", 0, 1),
    Sketcher.Constraint("Equal", 1, 2),
    Sketcher.Constraint("Horizontal", 0, 3, 1, 3),
    Sketcher.Constraint("Horizontal", 1, 3, 2, 3),
    Sketcher.Constraint("Diameter", 0, Q("4 mm")),
    Sketcher.Constraint("DistanceY", 0, 3, -1, 1, Q("4.923801 mm")),
    Sketcher.Constraint("DistanceX", 1, 3, 0, 3, Q("40.013399 mm")),
    Sketcher.Constraint("DistanceX", -1, 1, 0, 3, Q("40.791611 mm")),
    Sketcher.Constraint("DistanceX", 2, 3, -1, 1, Q("39.20777 mm")),
])
pocket8 = body.newObject("PartDesign::Pocket", "Pocket007")
pocket8.Profile = sketch9
pocket8.Length = 10
pocket8.Reversed = True

# Sketch on YZ plane
sketch10 = body.newObject("Sketcher::SketchObject", "Sketch009")
sketch10.AttachmentSupport = (doc.getObject("YZ_Plane"), [""])
sketch10.MapMode = "FlatFace"
sketch10.AttachmentOffset = App.Placement(App.Vector(0, 0, 65.795554), App.Rotation())
sketch10.addGeometry([
    Part.LineSegment(App.Vector(-141, 25, 0), App.Vector(-141, 0, 0)),
    Part.LineSegment(App.Vector(-141, 0, 0), App.Vector(-86, 0, 0)),
    Part.LineSegment(App.Vector(-86, 0, 0), App.Vector(-86, 25, 0)),
    Part.LineSegment(App.Vector(-86, 25, 0), App.Vector(-141, 25, 0)),
], False)
sketch10.addConstraint([
    Sketcher.Constraint("Coincident", 0, 2, 1, 1),
    Sketcher.Constraint("Coincident", 1, 2, 2, 1),
    Sketcher.Constraint("Coincident", 2, 2, 3, 1),
    Sketcher.Constraint("Coincident", 3, 2, 0, 1),
    Sketcher.Constraint("Vertical", 0),
    Sketcher.Constraint("Horizontal", 1),
    Sketcher.Constraint("Vertical", 2),
    Sketcher.Constraint("Horizontal", 3),
    Sketcher.Constraint("DistanceX", 1, 1, 1, 2, Q("55 mm")),
    Sketcher.Constraint("DistanceY", 0, 2, 0, 1, Q("25 mm")),
    Sketcher.Constraint("DistanceX", 0, 2, -1, 1, Q("141.35 mm")),
    Sketcher.Constraint("DistanceY", -1, 1, 0, 2, Q("0.076199 mm")),
])
pocket9 = body.newObject("PartDesign::Pocket", "Pocket008")
pocket9.Profile = sketch10
pocket9.Length = 140

# Sketch on XY plane
sketch11 = body.newObject("Sketcher::SketchObject", "Sketch010")
sketch11.AttachmentSupport = (doc.getObject("XY_Plane"), [""])
sketch11.MapMode = "FlatFace"
sketch11.AttachmentOffset = App.Placement(App.Vector(0, 0, 25.076199), App.Rotation())
sketch11.addGeometry([
    Part.LineSegment(App.Vector(-24, -75, 0), App.Vector(-24, -150, 0)),  # 0
    Part.LineSegment(App.Vector(-24, -150, 0), App.Vector(-14, -150, 0)),  # 1
    Part.LineSegment(App.Vector(-14, -150, 0), App.Vector(-14, -75, 0)),  # 2
    Part.LineSegment(App.Vector(-14, -75, 0), App.Vector(-24, -75, 0)),  # 3
    Part.LineSegment(App.Vector(16, -75, 0), App.Vector(16, -150, 0)),  # 4
    Part.LineSegment(App.Vector(16, -150, 0), App.Vector(26, -150, 0)),  # 5
    Part.LineSegment(App.Vector(26, -150, 0), App.Vector(26, -75, 0)),  # 6
    Part.LineSegment(App.Vector(26, -75, 0), App.Vector(16, -75, 0)),  # 7
], False)
sketch11.addConstraint([
    Sketcher.Constraint("Coincident", 0, 2, 1, 1),
    Sketcher.Constraint("Coincident", 1, 2, 2, 1),
    Sketcher.Constraint("Coincident", 2, 2, 3, 1),
    Sketcher.Constraint("Coincident", 3, 2, 0, 1),
    Sketcher.Constraint("Coincident", 4, 2, 5, 1),
    Sketcher.Constraint("Coincident", 5, 2, 6, 1),
    Sketcher.Constraint("Coincident", 6, 2, 7, 1),
    Sketcher.Constraint("Coincident", 7, 2, 4, 1),
    Sketcher.Constraint("Vertical", 0),
    Sketcher.Constraint("Horizontal", 1),
    Sketcher.Constraint("Vertical", 2),
    Sketcher.Constraint("Horizontal", 3),
    Sketcher.Constraint("Vertical", 4),
    Sketcher.Constraint("Horizontal", 5),
    Sketcher.Constraint("Vertical", 6),
    Sketcher.Constraint("Horizontal", 7),
    Sketcher.Constraint("Horizontal", 1, 2, 4, 2),
    Sketcher.Constraint("Horizontal", 3, 2, 6, 2),
    Sketcher.Constraint("Equal", 3, 5),
    Sketcher.Constraint("DistanceX", 1, 1, 1, 2, Q("10 mm")),
    Sketcher.Constraint("DistanceY", 0, 2, 0, 1, Q("75 mm")),
    Sketcher.Constraint("DistanceY", 0, 2, -1, 1, Q("150 mm")),
    Sketcher.Constraint("DistanceX", 1, 2, 4, 2, Q("30 mm")),
    Sketcher.Constraint("DistanceX", 0, 2, -1, 1, Q("24.204446 mm")),
])
pocket10 = body.newObject("PartDesign::Pocket", "Pocket009")
pocket10.Profile = sketch11
pocket10.Length = 25

doc.recompute()
